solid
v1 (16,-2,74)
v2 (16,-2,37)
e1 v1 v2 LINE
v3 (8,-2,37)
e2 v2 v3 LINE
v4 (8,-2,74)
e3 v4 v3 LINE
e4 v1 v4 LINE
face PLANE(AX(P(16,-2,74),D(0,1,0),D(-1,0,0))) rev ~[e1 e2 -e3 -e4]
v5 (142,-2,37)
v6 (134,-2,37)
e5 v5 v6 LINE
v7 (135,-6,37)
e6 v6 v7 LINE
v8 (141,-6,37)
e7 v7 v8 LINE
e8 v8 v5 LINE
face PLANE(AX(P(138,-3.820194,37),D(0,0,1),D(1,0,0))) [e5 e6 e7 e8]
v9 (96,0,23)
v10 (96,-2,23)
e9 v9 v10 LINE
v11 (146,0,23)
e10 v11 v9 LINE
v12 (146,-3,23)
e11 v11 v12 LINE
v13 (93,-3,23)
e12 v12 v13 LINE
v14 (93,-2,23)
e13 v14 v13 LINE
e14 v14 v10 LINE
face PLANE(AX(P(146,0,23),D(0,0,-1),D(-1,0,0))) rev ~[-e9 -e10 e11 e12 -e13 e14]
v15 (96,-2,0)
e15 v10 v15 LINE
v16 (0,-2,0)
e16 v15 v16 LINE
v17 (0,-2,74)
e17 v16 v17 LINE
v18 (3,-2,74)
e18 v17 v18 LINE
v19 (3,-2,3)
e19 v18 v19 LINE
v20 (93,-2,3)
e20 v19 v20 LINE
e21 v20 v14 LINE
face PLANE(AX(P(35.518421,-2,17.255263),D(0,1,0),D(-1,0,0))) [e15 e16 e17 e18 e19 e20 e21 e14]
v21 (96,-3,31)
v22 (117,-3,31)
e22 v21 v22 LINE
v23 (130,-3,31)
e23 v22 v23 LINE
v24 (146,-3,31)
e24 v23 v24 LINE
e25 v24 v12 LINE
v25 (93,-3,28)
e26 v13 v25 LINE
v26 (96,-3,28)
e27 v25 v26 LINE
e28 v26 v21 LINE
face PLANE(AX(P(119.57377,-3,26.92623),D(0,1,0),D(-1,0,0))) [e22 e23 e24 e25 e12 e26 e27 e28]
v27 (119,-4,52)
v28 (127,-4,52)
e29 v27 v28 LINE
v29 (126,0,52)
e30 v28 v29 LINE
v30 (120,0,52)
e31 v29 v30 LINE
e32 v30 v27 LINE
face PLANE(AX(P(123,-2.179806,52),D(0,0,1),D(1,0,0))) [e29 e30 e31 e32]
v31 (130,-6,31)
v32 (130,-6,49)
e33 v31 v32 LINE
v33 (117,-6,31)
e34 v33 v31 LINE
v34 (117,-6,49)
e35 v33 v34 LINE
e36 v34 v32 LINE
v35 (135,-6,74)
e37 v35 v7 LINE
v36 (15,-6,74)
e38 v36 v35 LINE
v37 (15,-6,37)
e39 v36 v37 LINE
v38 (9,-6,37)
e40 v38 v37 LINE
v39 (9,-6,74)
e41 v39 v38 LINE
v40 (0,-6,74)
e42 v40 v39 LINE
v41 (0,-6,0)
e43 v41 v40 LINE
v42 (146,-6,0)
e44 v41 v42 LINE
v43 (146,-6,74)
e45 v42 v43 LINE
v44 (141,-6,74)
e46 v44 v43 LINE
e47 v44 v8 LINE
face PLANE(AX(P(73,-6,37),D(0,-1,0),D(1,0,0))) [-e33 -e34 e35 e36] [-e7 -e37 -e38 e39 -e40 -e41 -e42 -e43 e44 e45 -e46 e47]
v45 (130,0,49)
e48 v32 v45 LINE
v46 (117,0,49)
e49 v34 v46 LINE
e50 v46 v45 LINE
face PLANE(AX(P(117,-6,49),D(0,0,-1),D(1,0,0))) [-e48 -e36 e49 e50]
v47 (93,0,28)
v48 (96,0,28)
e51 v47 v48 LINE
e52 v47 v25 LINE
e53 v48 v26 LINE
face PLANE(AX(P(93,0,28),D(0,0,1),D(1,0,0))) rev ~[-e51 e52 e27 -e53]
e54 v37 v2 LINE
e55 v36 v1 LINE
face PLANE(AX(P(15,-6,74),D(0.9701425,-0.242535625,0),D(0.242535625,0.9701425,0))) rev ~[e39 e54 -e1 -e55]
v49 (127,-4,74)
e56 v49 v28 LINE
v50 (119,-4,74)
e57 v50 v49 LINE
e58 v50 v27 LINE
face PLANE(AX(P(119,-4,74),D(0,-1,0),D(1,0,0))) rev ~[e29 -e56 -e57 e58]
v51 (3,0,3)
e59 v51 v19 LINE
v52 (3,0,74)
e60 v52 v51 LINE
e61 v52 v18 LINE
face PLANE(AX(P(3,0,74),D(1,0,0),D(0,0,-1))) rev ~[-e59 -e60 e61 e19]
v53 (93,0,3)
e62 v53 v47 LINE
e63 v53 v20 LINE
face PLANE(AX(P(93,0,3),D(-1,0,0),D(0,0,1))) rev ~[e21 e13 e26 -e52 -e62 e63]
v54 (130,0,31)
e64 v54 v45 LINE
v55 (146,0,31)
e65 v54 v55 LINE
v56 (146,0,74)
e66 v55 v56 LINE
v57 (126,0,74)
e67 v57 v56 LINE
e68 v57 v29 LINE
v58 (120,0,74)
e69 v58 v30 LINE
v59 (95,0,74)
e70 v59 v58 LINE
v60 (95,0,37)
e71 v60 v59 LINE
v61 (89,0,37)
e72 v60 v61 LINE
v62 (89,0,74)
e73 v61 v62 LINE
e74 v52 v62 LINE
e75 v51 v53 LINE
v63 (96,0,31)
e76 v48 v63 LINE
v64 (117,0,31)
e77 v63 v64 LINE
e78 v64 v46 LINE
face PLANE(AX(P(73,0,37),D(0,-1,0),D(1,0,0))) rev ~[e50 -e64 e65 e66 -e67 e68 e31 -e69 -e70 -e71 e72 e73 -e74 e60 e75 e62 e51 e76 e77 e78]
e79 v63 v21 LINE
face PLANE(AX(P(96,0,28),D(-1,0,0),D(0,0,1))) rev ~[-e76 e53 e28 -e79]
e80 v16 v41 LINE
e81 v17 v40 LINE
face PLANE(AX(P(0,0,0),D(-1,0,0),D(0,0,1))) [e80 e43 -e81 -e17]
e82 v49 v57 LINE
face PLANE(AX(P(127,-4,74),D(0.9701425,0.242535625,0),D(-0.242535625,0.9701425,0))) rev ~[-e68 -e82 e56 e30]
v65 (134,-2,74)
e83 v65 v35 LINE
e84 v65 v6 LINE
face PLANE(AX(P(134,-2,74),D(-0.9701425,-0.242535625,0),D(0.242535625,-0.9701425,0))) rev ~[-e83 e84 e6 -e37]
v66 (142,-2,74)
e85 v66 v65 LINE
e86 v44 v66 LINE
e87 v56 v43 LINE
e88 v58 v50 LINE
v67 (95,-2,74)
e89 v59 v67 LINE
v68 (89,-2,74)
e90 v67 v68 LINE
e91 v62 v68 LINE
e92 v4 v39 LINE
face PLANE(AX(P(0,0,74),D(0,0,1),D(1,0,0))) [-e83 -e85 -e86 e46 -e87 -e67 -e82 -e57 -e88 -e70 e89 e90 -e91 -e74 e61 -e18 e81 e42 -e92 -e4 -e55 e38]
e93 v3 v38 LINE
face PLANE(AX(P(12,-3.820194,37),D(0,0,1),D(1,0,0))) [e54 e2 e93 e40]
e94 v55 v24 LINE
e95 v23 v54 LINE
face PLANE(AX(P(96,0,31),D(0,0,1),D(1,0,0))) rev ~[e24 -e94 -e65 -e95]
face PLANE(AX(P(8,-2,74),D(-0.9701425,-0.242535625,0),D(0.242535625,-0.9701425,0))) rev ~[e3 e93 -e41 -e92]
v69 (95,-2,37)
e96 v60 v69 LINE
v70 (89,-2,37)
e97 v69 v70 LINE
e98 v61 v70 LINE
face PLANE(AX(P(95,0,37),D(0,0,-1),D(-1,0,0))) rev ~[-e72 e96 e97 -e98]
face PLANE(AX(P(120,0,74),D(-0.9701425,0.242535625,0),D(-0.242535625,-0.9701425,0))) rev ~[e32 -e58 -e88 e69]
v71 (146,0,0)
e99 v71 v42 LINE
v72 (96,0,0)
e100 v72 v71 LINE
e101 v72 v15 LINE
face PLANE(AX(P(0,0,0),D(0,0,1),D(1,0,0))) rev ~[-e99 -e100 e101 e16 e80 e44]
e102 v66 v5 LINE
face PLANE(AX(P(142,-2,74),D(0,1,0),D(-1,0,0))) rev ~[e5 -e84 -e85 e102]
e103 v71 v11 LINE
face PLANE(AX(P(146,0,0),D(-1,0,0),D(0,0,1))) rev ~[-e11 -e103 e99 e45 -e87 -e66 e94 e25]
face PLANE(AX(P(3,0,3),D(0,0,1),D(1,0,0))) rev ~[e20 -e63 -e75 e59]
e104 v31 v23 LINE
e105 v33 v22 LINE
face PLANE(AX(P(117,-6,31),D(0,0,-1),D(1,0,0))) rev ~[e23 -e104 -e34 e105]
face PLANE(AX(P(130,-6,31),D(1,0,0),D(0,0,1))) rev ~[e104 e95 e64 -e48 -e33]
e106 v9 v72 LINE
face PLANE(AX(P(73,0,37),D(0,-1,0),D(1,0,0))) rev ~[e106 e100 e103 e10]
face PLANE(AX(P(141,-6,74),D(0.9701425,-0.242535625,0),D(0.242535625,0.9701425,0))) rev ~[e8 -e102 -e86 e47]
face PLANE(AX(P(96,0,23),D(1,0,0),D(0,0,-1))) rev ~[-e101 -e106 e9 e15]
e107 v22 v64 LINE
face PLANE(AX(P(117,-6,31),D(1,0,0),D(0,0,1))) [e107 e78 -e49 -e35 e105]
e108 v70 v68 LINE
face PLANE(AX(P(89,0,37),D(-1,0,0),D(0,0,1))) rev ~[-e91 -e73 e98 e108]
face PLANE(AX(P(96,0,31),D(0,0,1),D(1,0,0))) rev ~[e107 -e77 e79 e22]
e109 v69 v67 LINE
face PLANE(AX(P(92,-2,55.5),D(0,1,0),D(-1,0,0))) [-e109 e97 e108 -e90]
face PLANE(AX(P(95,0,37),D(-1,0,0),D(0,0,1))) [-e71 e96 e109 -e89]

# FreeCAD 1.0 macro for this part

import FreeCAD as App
import Part
import Sketcher

V = App.Vector
Q = App.Units.Quantity


def add_polygon(sketch, points):
    """Adds a closed chain of lines whose ends are joined by coincident constraints."""
    first, n = sketch.GeometryCount, len(points)
    for a, b in zip(points, points[1:] + points[:1]):
        sketch.addGeometry(Part.LineSegment(App.Vector(*a, 0), App.Vector(*b, 0)), False)
    for i in range(n):
        sketch.addConstraint(Sketcher.Constraint("Coincident", first + i, 2, first + (i + 1) % n, 1))

doc = App.newDocument("Part")
body = doc.addObject("PartDesign::Body", "Body")

# Sketch on XZ plane
sketch1 = doc.addObject("Sketcher::SketchObject", "Sketch")
body.addObject(sketch1)
sketch1.AttachmentSupport = (doc.XZ_Plane, [""])
sketch1.MapMode = "FlatFace"
add_polygon(sketch1, [(0, 74), (0, 0), (146, 0), (146, 74)])  # lines 0-3
sketch1.addConstraint(Sketcher.Constraint("Vertical", 0))
sketch1.addConstraint(Sketcher.Constraint("Horizontal", 1))
sketch1.addConstraint(Sketcher.Constraint("Vertical", 2))
sketch1.addConstraint(Sketcher.Constraint("Horizontal", 3))
sketch1.addConstraint(Sketcher.Constraint("Coincident", 0, 2, -1, 1))
sketch1.addConstraint(Sketcher.Constraint("DistanceX", 1, 1, 1, 2, Q("146 mm")))
sketch1.addConstraint(Sketcher.Constraint("DistanceY", 0, 2, 0, 1, Q("74 mm")))
pad1 = doc.addObject("PartDesign::Pad", "Pad")
body.addObject(pad1)
pad1.Profile = sketch1
pad1.Length = 6

# Sketch on XZ plane
sketch2 = doc.addObject("Sketcher::SketchObject", "Sketch001")
body.addObject(sketch2)
sketch2.AttachmentSupport = (doc.XZ_Plane, [""])
sketch2.MapMode = "FlatFace"
sketch2.AttachmentOffset = App.Placement(V(0, 0, 6), App.Rotation())
add_polygon(sketch2, [(117, 49), (117, 31), (130, 31), (130, 49)])  # lines 0-3
sketch2.addConstraint(Sketcher.Constraint("Vertical", 0))
sketch2.addConstraint(Sketcher.Constraint("Horizontal", 1))
sketch2.addConstraint(Sketcher.Constraint("Vertical", 2))
sketch2.addConstraint(Sketcher.Constraint("Horizontal", 3))
sketch2.addConstraint(Sketcher.Constraint("DistanceX", 1, 1, 1, 2, Q("13 mm")))
sketch2.addConstraint(Sketcher.Constraint("DistanceY", 0, 2, 0, 1, Q("18 mm")))
sketch2.addConstraint(Sketcher.Constraint("DistanceX", -1, 1, 0, 2, Q("117 mm")))
sketch2.addConstraint(Sketcher.Constraint("DistanceY", -1, 1, 0, 2, Q("31 mm")))
pocket1 = doc.addObject("PartDesign::Pocket", "Pocket")
body.addObject(pocket1)
pocket1.Profile = sketch2
pocket1.Length = 6

# Sketch on XZ plane
sketch3 = doc.addObject("Sketcher::SketchObject", "Sketch002")
body.addObject(sketch3)
sketch3.AttachmentSupport = (doc.XZ_Plane, [""])
sketch3.MapMode = "FlatFace"
add_polygon(sketch3, [(96, 23), (96, 0), (0, 0), (0, 74), (3, 74), (3, 3), (93, 3), (93, 23)])  # lines 0-7
sketch3.addConstraint(Sketcher.Constraint("Vertical", 0))
sketch3.addConstraint(Sketcher.Constraint("Horizontal", 1))
sketch3.addConstraint(Sketcher.Constraint("Vertical", 2))
sketch3.addConstraint(Sketcher.Constraint("Horizontal", 3))
sketch3.addConstraint(Sketcher.Constraint("Vertical", 4))
sketch3.addConstraint(Sketcher.Constraint("Horizontal", 5))
sketch3.addConstraint(Sketcher.Constraint("Vertical", 6))
sketch3.addConstraint(Sketcher.Constraint("Horizontal", 7))
sketch3.addConstraint(Sketcher.Constraint("Coincident", 1, 2, -1, 1))
sketch3.addConstraint(Sketcher.Constraint("Equal", 3, 7))
sketch3.addConstraint(Sketcher.Constraint("DistanceX", 1, 2, 1, 1, Q("96 mm")))
sketch3.addConstraint(Sketcher.Constraint("DistanceX", 3, 1, 3, 2, Q("3 mm")))
sketch3.addConstraint(Sketcher.Constraint("DistanceY", 0, 2, 0, 1, Q("23 mm")))
sketch3.addConstraint(Sketcher.Constraint("DistanceY", 2, 1, 2, 2, Q("74 mm")))
sketch3.addConstraint(Sketcher.Constraint("DistanceY", 4, 2, 4, 1, Q("71 mm")))
pocket2 = doc.addObject("PartDesign::Pocket", "Pocket001")
body.addObject(pocket2)
pocket2.Profile = sketch3
pocket2.Length = 2
pocket2.Reversed = True

# Sketch on XZ plane
sketch4 = doc.addObject("Sketcher::SketchObject", "Sketch003")
body.addObject(sketch4)
sketch4.AttachmentSupport = (doc.XZ_Plane, [""])
sketch4.MapMode = "FlatFace"
add_polygon(sketch4, [(146, 31), (146, 23), (93, 23), (93, 28), (96, 28), (96, 31)])  # lines 0-5
sketch4.addConstraint(Sketcher.Constraint("Vertical", 0))
sketch4.addConstraint(Sketcher.Constraint("Horizontal", 1))
sketch4.addConstraint(Sketcher.Constraint("Vertical", 2))
sketch4.addConstraint(Sketcher.Constraint("Horizontal", 3))
sketch4.addConstraint(Sketcher.Constraint("Vertical", 4))
sketch4.addConstraint(Sketcher.Constraint("Horizontal", 5))
sketch4.addConstraint(Sketcher.Constraint("Equal", 3, 4))
sketch4.addConstraint(Sketcher.Constraint("DistanceX", 1, 2, 1, 1, Q("53 mm")))
sketch4.addConstraint(Sketcher.Constraint("DistanceX", 3, 1, 3, 2, Q("3 mm")))
sketch4.addConstraint(Sketcher.Constraint("DistanceY", 0, 2, 0, 1, Q("8 mm")))
sketch4.addConstraint(Sketcher.Constraint("DistanceX", -1, 1, 0, 2, Q("146 mm")))
sketch4.addConstraint(Sketcher.Constraint("DistanceY", -1, 1, 0, 2, Q("23 mm")))
pocket3 = doc.addObject("PartDesign::Pocket", "Pocket002")
body.addObject(pocket3)
pocket3.Profile = sketch4
pocket3.Length = 3
pocket3.Reversed = True

# Sketch on XZ plane
sketch5 = doc.addObject("Sketcher::SketchObject", "Sketch004")
body.addObject(sketch5)
sketch5.AttachmentSupport = (doc.XZ_Plane, [""])
sketch5.MapMode = "FlatFace"
add_polygon(sketch5, [(95, 74), (95, 37), (89, 37), (89, 74)])  # lines 0-3
sketch5.addConstraint(Sketcher.Constraint("Vertical", 0))
sketch5.addConstraint(Sketcher.Constraint("Horizontal", 1))
sketch5.addConstraint(Sketcher.Constraint("Vertical", 2))
sketch5.addConstraint(Sketcher.Constraint("Horizontal", 3))
sketch5.addConstraint(Sketcher.Constraint("DistanceX", 1, 2, 1, 1, Q("6 mm")))
sketch5.addConstraint(Sketcher.Constraint("DistanceY", 0, 2, 0, 1, Q("37 mm")))
sketch5.addConstraint(Sketcher.Constraint("DistanceX", -1, 1, 0, 2, Q("95 mm")))
sketch5.addConstraint(Sketcher.Constraint("DistanceY", -1, 1, 0, 2, Q("37 mm")))
pocket4 = doc.addObject("PartDesign::Pocket", "Pocket003")
body.addObject(pocket4)
pocket4.Profile = sketch5
pocket4.Length = 2
pocket4.Reversed = True

# Sketch on XY plane
sketch6 = doc.addObject("Sketcher::SketchObject", "Sketch005")
body.addObject(sketch6)
sketch6.AttachmentSupport = (doc.XY_Plane, [""])
sketch6.MapMode = "FlatFace"
sketch6.AttachmentOffset = App.Placement(V(0, 0, 74), App.Rotation())
add_polygon(sketch6, [(141, -6), (142, -2), (134, -2), (135, -6)])  # lines 0-3
sketch6.addConstraint(Sketcher.Constraint("Horizontal", 1))
sketch6.addConstraint(Sketcher.Constraint("Horizontal", 3))
sketch6.addConstraint(Sketcher.Constraint("Equal", 0, 2))
sketch6.addConstraint(Sketcher.Constraint("DistanceX", 1, 2, 1, 1, Q("8 mm")))
sketch6.addConstraint(Sketcher.Constraint("DistanceX", 3, 1, 3, 2, Q("6 mm")))
sketch6.addConstraint(Sketcher.Constraint("DistanceX", -1, 1, 0, 2, Q("142 mm")))
sketch6.addConstraint(Sketcher.Constraint("DistanceY", 0, 2, -1, 1, Q("2 mm")))
sketch6.addConstraint(Sketcher.Constraint("DistanceY", 2, 2, -1, 1, Q("6 mm")))
pocket5 = doc.addObject("PartDesign::Pocket", "Pocket004")
body.addObject(pocket5)
pocket5.Profile = sketch6
pocket5.Length = 37

# Sketch on XY plane
sketch7 = doc.addObject("Sketcher::SketchObject", "Sketch006")
body.addObject(sketch7)
sketch7.AttachmentSupport = (doc.XY_Plane, [""])
sketch7.MapMode = "FlatFace"
sketch7.AttachmentOffset = App.Placement(V(0, 0, 74), App.Rotation())
add_polygon(sketch7, [(15, -6), (16, -2), (8, -2), (9, -6)])  # lines 0-3
sketch7.addConstraint(Sketcher.Constraint("Horizontal", 1))
sketch7.addConstraint(Sketcher.Constraint("Horizontal", 3))
sketch7.addConstraint(Sketcher.Constraint("Equal", 0, 2))
sketch7.addConstraint(Sketcher.Constraint("DistanceX", 1, 2, 1, 1, Q("8 mm")))
sketch7.addConstraint(Sketcher.Constraint("DistanceX", 3, 1, 3, 2, Q("6 mm")))
sketch7.addConstraint(Sketcher.Constraint("DistanceX", -1, 1, 0, 2, Q("16 mm")))
sketch7.addConstraint(Sketcher.Constraint("DistanceY", 0, 2, -1, 1, Q("2 mm")))
sketch7.addConstraint(Sketcher.Constraint("DistanceY", 2, 2, -1, 1, Q("6 mm")))
pocket6 = doc.addObject("PartDesign::Pocket", "Pocket005")
body.addObject(pocket6)
pocket6.Profile = sketch7
pocket6.Length = 37

# Sketch on XY plane
sketch8 = doc.addObject("Sketcher::SketchObject", "Sketch007")
body.addObject(sketch8)
sketch8.AttachmentSupport = (doc.XY_Plane, [""])
sketch8.MapMode = "FlatFace"
sketch8.AttachmentOffset = App.Placement(V(0, 0, 74), App.Rotation())
add_polygon(sketch8, [(127, -4), (126, 0), (120, 0), (119, -4)])  # lines 0-3
sketch8.addConstraint(Sketcher.Constraint("Horizontal", 1))
sketch8.addConstraint(Sketcher.Constraint("Horizontal", 3))
sketch8.addConstraint(Sketcher.Constraint("PointOnObject", 0, 2, -1))
sketch8.addConstraint(Sketcher.Constraint("Equal", 0, 2))
sketch8.addConstraint(Sketcher.Constraint("DistanceX", 1, 2, 1, 1, Q("6 mm")))
sketch8.addConstraint(Sketcher.Constraint("DistanceX", 3, 1, 3, 2, Q("8 mm")))
sketch8.addConstraint(Sketcher.Constraint("DistanceX", -1, 1, 0, 2, Q("126 mm")))
sketch8.addConstraint(Sketcher.Constraint("DistanceY", 2, 2, -1, 1, Q("4 mm")))
pocket7 = doc.addObject("PartDesign::Pocket", "Pocket006")
body.addObject(pocket7)
pocket7.Profile = sketch8
pocket7.Length = 22

doc.recompute()
